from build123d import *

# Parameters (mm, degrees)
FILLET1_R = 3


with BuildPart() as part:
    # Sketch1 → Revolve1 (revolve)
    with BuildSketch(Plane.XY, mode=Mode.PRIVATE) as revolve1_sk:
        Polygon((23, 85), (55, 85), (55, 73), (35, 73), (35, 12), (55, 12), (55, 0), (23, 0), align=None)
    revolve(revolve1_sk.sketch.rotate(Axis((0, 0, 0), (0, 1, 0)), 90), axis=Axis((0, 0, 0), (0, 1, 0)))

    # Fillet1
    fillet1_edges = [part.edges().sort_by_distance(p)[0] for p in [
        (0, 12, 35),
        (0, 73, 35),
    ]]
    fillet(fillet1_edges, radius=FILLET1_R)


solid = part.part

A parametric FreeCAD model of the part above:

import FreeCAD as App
import Part
import Sketcher


def edges_at(feature, points):
    """Names of the edges that pass closest to the given points."""
    edges = feature.Shape.Edges
    near = lambda p: min(range(len(edges)), key=lambda i: edges[i].distToShape(Part.Vertex(*p))[0])
    return sorted({f"Edge{near(p) + 1}" for p in points})


def add_polygon(sketch, points):
    """Adds a closed chain of lines whose ends are joined by coincident constraints."""
    first, n = sketch.GeometryCount, len(points)
    for a, b in zip(points, points[1:] + points[:1]):
        sketch.addGeometry(Part.LineSegment(App.Vector(*a, 0), App.Vector(*b, 0)), False)
    for i in range(n):
        sketch.addConstraint(Sketcher.Constraint("Coincident", first + i, 2, first + (i + 1) % n, 1))

doc = App.newDocument("Part")
body = doc.addObject("PartDesign::Body", "Body")

sketch1 = doc.addObject("Sketcher::SketchObject", "Sketch")
body.addObject(sketch1)
sketch1.AttachmentSupport = (doc.XY_Plane, [""])
sketch1.MapMode = "FlatFace"
add_polygon(sketch1, [(55, 85), (23, 85), (23, 0), (55, 0), (55, 12), (35, 12), (35, 73), (55, 73)])
sketch1.addConstraint([
    Sketcher.Constraint("Horizontal", 0),
    Sketcher.Constraint("Vertical", 1),
    Sketcher.Constraint("Horizontal", 2),
    Sketcher.Constraint("Vertical", 3),
    Sketcher.Constraint("Horizontal", 4),
    Sketcher.Constraint("Vertical", 5),
    Sketcher.Constraint("Horizontal", 6),
    Sketcher.Constraint("Vertical", 7),
    Sketcher.Constraint("PointOnObject", 1, 2, -1),
    Sketcher.Constraint("Vertical", 3, 2, 6, 2),
    Sketcher.Constraint("Equal", 3, 7),
    Sketcher.Constraint("DistanceX", 0, 2, 0, 1, 32.0),
    Sketcher.Constraint("DistanceX", 4, 2, 4, 1, 20.0),
    Sketcher.Constraint("DistanceY", 1, 2, 1, 1, 85.0),
    Sketcher.Constraint("DistanceY", 3, 1, 3, 2, 12.0),
    Sketcher.Constraint("DistanceX", -1, 1, 0, 2, 23.0),
])
revolution = doc.addObject("PartDesign::Revolution", "Revolution")
body.addObject(revolution)
revolution.Profile = sketch1
revolution.ReferenceAxis = (sketch1, ["V_Axis"])
revolution.Angle = 360
doc.recompute()

fillet = doc.addObject("PartDesign::Fillet", "Fillet")
body.addObject(fillet)
fillet.Base = (revolution, edges_at(revolution, [(0, 12, 35), (0, 73, 35)]))
fillet.Radius = 3

doc.recompute()
